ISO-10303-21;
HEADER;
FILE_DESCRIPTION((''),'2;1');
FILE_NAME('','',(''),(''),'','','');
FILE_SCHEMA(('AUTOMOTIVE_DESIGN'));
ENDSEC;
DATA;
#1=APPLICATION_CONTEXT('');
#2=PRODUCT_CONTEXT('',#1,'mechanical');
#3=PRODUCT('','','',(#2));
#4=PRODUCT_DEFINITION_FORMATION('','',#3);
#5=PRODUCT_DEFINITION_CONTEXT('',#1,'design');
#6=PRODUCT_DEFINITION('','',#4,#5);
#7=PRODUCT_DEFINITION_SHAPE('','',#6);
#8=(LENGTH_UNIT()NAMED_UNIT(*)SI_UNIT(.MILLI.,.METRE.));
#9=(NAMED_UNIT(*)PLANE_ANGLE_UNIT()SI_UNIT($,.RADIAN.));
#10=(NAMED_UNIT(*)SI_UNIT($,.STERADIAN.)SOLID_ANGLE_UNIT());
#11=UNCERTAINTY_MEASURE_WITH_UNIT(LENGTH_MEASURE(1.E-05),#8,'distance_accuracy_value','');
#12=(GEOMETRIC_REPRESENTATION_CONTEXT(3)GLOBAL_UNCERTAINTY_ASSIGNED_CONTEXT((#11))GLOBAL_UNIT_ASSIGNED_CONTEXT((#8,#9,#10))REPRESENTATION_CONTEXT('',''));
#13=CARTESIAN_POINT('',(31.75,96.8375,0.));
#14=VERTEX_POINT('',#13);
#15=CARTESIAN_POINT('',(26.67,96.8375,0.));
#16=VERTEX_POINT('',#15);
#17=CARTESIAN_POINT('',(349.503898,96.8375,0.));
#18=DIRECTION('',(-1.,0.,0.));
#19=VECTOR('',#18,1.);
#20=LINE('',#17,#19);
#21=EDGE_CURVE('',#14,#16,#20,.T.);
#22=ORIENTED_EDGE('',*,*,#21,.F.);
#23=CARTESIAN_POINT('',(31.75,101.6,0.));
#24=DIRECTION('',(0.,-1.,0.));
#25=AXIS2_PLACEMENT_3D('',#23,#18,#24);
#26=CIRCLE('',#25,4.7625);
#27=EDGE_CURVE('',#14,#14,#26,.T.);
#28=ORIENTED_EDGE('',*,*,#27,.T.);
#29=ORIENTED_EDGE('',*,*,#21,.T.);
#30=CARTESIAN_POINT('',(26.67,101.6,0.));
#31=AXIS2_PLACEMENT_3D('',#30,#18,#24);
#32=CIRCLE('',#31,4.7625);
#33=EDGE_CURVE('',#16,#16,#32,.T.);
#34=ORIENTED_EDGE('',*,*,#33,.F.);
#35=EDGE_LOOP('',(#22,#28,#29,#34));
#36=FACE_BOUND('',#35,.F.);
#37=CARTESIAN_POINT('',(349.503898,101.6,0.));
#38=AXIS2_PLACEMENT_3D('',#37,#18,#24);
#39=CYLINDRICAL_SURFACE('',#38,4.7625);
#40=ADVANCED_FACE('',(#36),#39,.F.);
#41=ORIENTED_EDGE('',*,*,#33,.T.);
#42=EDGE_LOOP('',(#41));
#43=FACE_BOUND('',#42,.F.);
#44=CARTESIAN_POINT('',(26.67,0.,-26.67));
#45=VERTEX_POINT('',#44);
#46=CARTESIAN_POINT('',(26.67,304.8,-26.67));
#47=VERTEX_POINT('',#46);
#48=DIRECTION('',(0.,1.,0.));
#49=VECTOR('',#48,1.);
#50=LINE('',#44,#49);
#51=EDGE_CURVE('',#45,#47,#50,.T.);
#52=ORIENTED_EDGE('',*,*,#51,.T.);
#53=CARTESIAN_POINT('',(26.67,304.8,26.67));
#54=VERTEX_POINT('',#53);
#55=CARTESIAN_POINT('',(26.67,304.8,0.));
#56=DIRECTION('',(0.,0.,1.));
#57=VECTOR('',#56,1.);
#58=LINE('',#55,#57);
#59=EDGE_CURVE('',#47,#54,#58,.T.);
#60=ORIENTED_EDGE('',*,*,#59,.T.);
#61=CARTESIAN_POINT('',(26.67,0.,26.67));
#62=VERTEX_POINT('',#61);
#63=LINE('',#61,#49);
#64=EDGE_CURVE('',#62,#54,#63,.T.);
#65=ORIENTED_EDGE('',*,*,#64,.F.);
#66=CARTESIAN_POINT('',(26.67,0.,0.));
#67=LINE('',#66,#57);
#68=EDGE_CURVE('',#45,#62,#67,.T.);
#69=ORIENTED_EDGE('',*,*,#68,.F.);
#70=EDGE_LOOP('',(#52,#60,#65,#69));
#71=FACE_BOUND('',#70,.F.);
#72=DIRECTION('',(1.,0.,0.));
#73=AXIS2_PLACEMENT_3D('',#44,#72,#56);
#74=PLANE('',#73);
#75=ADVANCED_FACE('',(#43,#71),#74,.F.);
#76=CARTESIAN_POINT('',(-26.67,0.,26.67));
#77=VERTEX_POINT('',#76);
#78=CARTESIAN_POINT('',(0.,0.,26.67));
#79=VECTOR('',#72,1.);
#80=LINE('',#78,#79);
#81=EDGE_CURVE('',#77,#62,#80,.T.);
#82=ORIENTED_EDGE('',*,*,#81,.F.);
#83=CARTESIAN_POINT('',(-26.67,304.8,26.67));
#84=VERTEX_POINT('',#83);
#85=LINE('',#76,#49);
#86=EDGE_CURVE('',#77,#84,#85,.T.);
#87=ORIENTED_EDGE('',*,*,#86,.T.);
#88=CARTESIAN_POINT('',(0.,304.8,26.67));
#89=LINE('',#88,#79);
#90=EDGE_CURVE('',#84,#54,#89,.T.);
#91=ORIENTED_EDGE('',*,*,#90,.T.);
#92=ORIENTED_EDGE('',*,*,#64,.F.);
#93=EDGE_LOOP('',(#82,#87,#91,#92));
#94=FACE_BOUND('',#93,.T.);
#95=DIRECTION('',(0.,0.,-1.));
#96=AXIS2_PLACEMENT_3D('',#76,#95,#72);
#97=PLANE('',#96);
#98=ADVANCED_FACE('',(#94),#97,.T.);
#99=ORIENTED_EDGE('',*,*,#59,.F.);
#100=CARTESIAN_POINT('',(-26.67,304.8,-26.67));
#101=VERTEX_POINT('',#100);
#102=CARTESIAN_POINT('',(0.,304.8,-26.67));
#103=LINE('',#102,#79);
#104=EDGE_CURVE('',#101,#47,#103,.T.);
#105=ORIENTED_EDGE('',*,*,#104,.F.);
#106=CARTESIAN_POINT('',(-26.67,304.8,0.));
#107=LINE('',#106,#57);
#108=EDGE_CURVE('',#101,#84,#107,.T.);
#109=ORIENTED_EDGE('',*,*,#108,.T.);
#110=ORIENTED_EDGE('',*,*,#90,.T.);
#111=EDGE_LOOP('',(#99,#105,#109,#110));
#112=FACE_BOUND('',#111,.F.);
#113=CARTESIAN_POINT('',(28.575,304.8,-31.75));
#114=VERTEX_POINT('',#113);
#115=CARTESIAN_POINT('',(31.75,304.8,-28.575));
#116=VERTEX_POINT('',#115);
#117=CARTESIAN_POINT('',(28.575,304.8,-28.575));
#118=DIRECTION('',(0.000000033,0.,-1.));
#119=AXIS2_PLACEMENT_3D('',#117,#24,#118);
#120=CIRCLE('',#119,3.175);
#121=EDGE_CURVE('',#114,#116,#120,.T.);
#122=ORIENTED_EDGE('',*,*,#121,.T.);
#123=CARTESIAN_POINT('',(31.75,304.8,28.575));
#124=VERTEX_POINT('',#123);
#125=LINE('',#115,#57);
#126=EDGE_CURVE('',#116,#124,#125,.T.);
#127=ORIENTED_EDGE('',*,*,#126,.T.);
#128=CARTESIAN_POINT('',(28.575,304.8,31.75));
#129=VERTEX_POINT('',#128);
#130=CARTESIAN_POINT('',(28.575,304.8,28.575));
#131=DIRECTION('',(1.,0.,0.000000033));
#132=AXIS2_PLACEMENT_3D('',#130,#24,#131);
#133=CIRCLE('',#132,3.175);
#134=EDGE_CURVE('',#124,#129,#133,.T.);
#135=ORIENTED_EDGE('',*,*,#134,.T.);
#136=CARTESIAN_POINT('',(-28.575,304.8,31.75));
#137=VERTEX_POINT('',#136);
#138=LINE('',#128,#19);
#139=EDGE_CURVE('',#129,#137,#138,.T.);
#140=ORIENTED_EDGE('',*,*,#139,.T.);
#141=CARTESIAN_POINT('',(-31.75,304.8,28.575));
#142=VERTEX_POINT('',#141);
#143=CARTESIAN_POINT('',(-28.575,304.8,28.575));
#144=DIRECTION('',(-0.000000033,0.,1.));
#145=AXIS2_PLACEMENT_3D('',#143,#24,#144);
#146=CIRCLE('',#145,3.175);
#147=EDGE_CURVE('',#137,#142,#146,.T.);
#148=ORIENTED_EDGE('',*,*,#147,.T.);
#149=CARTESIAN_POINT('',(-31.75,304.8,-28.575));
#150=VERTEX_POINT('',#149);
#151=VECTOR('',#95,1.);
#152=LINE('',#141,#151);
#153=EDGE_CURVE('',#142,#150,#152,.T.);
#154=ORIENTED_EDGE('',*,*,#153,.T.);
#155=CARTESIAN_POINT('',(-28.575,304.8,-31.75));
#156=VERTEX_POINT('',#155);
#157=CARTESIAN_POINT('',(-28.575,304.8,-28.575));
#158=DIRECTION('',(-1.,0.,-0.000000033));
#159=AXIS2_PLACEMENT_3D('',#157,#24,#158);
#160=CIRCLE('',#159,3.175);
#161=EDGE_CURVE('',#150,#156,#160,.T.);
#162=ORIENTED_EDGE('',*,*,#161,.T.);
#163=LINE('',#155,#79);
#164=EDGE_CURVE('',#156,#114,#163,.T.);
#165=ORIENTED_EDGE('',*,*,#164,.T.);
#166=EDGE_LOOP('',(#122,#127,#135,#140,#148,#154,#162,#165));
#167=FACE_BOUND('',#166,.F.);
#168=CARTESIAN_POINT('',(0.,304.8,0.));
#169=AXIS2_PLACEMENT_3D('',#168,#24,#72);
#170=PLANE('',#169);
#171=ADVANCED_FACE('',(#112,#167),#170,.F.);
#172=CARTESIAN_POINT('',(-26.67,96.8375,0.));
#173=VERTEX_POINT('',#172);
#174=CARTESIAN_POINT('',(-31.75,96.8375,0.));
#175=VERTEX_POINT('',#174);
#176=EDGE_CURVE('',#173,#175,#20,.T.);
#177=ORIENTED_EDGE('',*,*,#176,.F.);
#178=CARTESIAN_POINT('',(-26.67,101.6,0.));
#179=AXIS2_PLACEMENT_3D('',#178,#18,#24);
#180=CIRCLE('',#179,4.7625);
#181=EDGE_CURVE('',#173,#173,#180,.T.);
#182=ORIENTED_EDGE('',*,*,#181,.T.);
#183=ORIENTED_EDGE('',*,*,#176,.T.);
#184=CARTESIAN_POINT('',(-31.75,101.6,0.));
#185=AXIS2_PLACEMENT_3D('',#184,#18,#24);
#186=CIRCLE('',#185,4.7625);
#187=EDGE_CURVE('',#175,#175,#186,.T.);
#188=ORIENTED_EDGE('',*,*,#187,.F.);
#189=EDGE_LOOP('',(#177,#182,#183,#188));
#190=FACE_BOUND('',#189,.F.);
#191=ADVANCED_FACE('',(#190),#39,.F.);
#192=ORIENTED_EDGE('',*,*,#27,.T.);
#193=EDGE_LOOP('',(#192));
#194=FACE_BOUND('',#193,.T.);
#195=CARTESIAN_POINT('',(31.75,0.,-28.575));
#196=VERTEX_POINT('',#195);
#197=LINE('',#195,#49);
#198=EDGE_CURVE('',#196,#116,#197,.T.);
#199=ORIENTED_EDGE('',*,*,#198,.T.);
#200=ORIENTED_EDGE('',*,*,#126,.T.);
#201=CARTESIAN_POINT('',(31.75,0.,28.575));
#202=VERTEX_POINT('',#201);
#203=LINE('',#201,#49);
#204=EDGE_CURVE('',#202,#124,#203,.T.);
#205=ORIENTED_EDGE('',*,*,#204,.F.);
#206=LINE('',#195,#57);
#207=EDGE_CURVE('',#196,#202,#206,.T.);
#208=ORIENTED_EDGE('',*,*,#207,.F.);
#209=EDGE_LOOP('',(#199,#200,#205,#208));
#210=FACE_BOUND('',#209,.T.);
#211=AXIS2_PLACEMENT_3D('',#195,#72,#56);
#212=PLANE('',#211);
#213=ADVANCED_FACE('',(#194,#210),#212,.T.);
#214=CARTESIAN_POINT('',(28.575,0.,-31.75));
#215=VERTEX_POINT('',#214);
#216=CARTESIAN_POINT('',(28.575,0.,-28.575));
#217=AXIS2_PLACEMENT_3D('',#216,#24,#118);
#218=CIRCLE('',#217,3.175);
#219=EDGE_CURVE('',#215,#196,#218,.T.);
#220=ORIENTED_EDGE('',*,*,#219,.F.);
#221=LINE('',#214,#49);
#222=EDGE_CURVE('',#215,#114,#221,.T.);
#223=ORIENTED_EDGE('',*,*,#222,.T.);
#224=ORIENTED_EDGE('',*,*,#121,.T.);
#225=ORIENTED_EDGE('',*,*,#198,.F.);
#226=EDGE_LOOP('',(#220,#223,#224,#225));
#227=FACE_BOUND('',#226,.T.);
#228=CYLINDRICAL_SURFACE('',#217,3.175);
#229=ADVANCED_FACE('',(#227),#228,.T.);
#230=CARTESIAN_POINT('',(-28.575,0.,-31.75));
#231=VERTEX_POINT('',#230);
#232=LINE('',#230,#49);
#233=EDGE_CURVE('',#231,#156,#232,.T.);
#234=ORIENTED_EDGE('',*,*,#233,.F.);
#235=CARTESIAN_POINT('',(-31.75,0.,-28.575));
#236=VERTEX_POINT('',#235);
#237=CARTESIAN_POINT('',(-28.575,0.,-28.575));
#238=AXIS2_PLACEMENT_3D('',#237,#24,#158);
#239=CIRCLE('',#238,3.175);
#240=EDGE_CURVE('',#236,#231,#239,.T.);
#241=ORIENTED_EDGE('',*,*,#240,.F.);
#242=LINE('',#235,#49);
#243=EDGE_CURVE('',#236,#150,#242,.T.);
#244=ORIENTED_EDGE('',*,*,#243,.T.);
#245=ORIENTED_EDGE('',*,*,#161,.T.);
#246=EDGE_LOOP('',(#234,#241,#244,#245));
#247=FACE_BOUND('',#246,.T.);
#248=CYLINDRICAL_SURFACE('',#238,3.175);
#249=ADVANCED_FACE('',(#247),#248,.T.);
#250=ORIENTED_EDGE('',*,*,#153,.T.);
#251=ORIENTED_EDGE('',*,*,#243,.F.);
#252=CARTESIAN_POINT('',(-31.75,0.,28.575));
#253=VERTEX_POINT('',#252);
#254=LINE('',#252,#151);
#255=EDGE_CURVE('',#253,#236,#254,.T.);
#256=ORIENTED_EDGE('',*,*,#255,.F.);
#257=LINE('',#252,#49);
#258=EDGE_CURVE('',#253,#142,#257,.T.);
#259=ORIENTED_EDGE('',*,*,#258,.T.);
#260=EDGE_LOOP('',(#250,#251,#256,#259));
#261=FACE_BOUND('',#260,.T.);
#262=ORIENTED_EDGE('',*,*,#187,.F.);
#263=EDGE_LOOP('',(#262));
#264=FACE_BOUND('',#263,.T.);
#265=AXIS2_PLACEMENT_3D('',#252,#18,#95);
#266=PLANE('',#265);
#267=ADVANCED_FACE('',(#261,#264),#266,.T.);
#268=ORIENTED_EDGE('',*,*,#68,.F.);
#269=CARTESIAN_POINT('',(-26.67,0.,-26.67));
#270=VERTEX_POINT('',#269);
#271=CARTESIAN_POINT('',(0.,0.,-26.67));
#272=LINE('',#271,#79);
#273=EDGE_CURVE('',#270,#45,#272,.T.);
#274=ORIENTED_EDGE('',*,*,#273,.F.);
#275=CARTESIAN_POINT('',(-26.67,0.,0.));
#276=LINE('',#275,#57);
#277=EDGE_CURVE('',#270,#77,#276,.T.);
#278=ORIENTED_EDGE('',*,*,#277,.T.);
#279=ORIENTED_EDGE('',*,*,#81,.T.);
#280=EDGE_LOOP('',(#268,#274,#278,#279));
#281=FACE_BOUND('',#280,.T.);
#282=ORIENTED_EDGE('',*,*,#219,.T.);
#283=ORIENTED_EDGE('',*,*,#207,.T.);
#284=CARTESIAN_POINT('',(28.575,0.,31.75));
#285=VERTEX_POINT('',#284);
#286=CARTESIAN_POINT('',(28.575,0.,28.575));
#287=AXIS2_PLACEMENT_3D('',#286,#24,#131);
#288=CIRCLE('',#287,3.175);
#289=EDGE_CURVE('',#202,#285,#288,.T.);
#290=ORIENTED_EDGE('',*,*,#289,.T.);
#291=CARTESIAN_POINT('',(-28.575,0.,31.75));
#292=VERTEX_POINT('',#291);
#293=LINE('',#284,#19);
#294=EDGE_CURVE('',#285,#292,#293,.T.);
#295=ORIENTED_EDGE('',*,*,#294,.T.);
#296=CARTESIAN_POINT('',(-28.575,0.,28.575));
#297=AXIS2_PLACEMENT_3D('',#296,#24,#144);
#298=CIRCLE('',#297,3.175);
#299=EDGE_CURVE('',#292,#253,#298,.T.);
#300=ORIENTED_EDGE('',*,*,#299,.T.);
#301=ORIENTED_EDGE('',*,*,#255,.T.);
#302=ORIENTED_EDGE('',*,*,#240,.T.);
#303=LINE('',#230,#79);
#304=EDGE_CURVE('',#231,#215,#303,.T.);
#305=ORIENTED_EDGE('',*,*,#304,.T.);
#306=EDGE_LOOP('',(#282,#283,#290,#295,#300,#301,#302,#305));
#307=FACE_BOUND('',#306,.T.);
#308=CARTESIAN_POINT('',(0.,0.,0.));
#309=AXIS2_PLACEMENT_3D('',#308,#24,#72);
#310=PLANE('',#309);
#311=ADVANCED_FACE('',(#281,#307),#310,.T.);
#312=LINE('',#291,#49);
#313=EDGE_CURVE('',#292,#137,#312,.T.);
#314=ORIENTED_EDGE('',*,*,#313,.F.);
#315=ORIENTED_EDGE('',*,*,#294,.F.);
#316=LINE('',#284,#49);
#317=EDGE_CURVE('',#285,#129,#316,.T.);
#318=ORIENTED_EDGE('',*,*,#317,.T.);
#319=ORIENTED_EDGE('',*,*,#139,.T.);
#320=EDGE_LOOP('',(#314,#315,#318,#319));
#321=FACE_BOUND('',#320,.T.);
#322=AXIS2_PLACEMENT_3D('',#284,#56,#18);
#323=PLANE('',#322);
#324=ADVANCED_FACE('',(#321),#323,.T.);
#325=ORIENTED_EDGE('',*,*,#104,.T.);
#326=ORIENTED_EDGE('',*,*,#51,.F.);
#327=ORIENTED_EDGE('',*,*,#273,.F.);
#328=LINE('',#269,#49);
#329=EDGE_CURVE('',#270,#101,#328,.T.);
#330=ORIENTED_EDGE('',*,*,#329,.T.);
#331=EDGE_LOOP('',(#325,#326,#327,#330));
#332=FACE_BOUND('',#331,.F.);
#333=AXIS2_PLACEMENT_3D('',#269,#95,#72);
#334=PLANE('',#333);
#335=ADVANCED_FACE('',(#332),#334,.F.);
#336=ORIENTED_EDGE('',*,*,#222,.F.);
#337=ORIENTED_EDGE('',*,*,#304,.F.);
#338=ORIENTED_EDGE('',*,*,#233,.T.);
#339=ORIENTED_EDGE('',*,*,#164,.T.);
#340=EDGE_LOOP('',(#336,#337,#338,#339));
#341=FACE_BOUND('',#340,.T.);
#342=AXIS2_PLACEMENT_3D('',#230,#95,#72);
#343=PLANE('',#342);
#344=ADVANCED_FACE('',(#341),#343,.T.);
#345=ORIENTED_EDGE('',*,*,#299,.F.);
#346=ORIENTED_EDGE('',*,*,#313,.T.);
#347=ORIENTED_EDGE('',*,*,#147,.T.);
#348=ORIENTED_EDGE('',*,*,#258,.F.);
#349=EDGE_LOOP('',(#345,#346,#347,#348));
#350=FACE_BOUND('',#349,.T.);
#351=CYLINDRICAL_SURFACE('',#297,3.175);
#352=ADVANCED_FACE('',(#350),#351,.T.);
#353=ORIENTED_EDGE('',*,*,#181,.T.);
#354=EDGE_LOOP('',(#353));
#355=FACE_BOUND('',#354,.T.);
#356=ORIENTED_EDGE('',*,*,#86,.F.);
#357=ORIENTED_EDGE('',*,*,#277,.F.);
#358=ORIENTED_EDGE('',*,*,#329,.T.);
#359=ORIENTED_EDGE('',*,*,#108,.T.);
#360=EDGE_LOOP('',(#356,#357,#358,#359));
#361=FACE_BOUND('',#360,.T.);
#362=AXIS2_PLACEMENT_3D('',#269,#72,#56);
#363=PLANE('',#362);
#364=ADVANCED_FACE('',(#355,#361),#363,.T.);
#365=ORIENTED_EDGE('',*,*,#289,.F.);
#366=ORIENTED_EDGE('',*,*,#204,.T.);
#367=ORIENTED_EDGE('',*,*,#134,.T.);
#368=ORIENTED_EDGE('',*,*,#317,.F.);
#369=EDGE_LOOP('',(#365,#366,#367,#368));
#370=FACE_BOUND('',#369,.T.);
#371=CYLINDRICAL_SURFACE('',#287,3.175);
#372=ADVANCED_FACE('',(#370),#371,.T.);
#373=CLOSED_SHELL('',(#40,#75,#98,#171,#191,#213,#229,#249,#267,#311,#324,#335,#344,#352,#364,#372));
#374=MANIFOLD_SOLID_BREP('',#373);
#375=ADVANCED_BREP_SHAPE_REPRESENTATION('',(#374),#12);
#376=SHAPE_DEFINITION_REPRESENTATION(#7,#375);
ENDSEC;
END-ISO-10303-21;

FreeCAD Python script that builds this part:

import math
import FreeCAD as App
import Part
import Sketcher

V = App.Vector
Q = App.Units.Quantity


def add_polygon(sketch, points):
    """Adds a closed chain of lines whose ends are joined by coincident constraints."""
    first, n = sketch.GeometryCount, len(points)
    for a, b in zip(points, points[1:] + points[:1]):
        sketch.addGeometry(Part.LineSegment(App.Vector(*a, 0), App.Vector(*b, 0)), False)
    for i in range(n):
        sketch.addConstraint(Sketcher.Constraint("Coincident", first + i, 2, first + (i + 1) % n, 1))

doc = App.newDocument("Part")
body = doc.addObject("PartDesign::Body", "Body")

# Sketch on XZ plane
sketch1 = doc.addObject("Sketcher::SketchObject", "Sketch")
body.addObject(sketch1)
sketch1.AttachmentSupport = (doc.XZ_Plane, [""])
sketch1.MapMode = "FlatFace"
sketch1.addGeometry(Part.ArcOfCircle(Part.Circle(V(28.575, 28.575, 0), V(0, 0, 1), 3.175), math.radians(0.000002), math.radians(89.999998)), False)  # 0
sketch1.addGeometry(Part.LineSegment(V(28.575, 31.75, 0), V(-28.575, 31.75, 0)), False)  # 1
sketch1.addGeometry(Part.ArcOfCircle(Part.Circle(V(-28.575, 28.575, 0), V(0, 0, 1), 3.175), math.radians(90.000002), math.radians(179.999998)), False)  # 2
sketch1.addGeometry(Part.LineSegment(V(-31.75, 28.575, 0), V(-31.75, -28.575, 0)), False)  # 3
sketch1.addGeometry(Part.ArcOfCircle(Part.Circle(V(-28.575, -28.575, 0), V(0, 0, 1), 3.175), math.radians(-179.999998), math.radians(-90.000002)), False)  # 4
sketch1.addGeometry(Part.LineSegment(V(-28.575, -31.75, 0), V(28.575, -31.75, 0)), False)  # 5
sketch1.addGeometry(Part.ArcOfCircle(Part.Circle(V(28.575, -28.575, 0), V(0, 0, 1), 3.175), math.radians(-89.999998), math.radians(-0.000002)), False)  # 6
sketch1.addGeometry(Part.LineSegment(V(31.75, -28.575, 0), V(31.75, 28.575, 0)), False)  # 7
add_polygon(sketch1, [(26.67, -26.67), (-26.67, -26.67), (-26.67, 26.67), (26.67, 26.67)])  # lines 8-11
sketch1.addConstraint(Sketcher.Constraint("Tangent", 0, 2, 1, 1))
sketch1.addConstraint(Sketcher.Constraint("Tangent", 1, 2, 2, 1))
sketch1.addConstraint(Sketcher.Constraint("Tangent", 2, 2, 3, 1))
sketch1.addConstraint(Sketcher.Constraint("Tangent", 3, 2, 4, 1))
sketch1.addConstraint(Sketcher.Constraint("Tangent", 4, 2, 5, 1))
sketch1.addConstraint(Sketcher.Constraint("Tangent", 5, 2, 6, 1))
sketch1.addConstraint(Sketcher.Constraint("Tangent", 6, 2, 7, 1))
sketch1.addConstraint(Sketcher.Constraint("Tangent", 7, 2, 0, 1))
sketch1.addConstraint(Sketcher.Constraint("Horizontal", 1))
sketch1.addConstraint(Sketcher.Constraint("Vertical", 3))
sketch1.addConstraint(Sketcher.Constraint("Horizontal", 5))
sketch1.addConstraint(Sketcher.Constraint("Vertical", 7))
sketch1.addConstraint(Sketcher.Constraint("Horizontal", 8))
sketch1.addConstraint(Sketcher.Constraint("Vertical", 9))
sketch1.addConstraint(Sketcher.Constraint("Horizontal", 10))
sketch1.addConstraint(Sketcher.Constraint("Vertical", 11))
sketch1.addConstraint(Sketcher.Constraint("Equal", 0, 2))
sketch1.addConstraint(Sketcher.Constraint("Equal", 2, 4))
sketch1.addConstraint(Sketcher.Constraint("Equal", 4, 6))
sketch1.addConstraint(Sketcher.Constraint("Symmetric", 0, 3, 4, 3, -1, 1))
sketch1.addConstraint(Sketcher.Constraint("Symmetric", 8, 2, 10, 2, -1, 1))
sketch1.addConstraint(Sketcher.Constraint("Equal", 5, 3))
sketch1.addConstraint(Sketcher.Constraint("Equal", 10, 9))
sketch1.addConstraint(Sketcher.Constraint("DistanceX", 8, 2, 8, 1, Q("2.1 in")))
sketch1.addConstraint(Sketcher.Constraint("Radius", 0, Q("0.125 in")))
sketch1.addConstraint(Sketcher.Constraint("DistanceX", 1, 2, 1, 1, Q("2.25 in")))
pad1 = doc.addObject("PartDesign::Pad", "Pad")
body.addObject(pad1)
pad1.Profile = sketch1
pad1.Length = Q("12 in")
pad1.Reversed = True

# Sketch on YZ plane
sketch2 = doc.addObject("Sketcher::SketchObject", "Sketch001")
body.addObject(sketch2)
sketch2.AttachmentSupport = (doc.YZ_Plane, [""])
sketch2.MapMode = "FlatFace"
sketch2.AttachmentOffset = App.Placement(V(0, 0, 1.25 * 25.4), App.Rotation())
sketch2.addGeometry(Part.Circle(V(101.6, 0, 0), V(0, 0, 1), 4.7625), False)
sketch2.addConstraint(Sketcher.Constraint("PointOnObject", 0, 3, -1))
sketch2.addConstraint(Sketcher.Constraint("Diameter", 0, Q("0.375 in")))
sketch2.addConstraint(Sketcher.Constraint("DistanceX", -1, 1, 0, 3, Q("4 in")))
doc.recompute()
hole = doc.addObject("PartDesign::Hole", "Hole")
body.addObject(hole)
hole.Profile = sketch2
hole.ThreadType = "None"
hole.Diameter = Q("0.375 in")
hole.DepthType = "ThroughAll"

doc.recompute()
